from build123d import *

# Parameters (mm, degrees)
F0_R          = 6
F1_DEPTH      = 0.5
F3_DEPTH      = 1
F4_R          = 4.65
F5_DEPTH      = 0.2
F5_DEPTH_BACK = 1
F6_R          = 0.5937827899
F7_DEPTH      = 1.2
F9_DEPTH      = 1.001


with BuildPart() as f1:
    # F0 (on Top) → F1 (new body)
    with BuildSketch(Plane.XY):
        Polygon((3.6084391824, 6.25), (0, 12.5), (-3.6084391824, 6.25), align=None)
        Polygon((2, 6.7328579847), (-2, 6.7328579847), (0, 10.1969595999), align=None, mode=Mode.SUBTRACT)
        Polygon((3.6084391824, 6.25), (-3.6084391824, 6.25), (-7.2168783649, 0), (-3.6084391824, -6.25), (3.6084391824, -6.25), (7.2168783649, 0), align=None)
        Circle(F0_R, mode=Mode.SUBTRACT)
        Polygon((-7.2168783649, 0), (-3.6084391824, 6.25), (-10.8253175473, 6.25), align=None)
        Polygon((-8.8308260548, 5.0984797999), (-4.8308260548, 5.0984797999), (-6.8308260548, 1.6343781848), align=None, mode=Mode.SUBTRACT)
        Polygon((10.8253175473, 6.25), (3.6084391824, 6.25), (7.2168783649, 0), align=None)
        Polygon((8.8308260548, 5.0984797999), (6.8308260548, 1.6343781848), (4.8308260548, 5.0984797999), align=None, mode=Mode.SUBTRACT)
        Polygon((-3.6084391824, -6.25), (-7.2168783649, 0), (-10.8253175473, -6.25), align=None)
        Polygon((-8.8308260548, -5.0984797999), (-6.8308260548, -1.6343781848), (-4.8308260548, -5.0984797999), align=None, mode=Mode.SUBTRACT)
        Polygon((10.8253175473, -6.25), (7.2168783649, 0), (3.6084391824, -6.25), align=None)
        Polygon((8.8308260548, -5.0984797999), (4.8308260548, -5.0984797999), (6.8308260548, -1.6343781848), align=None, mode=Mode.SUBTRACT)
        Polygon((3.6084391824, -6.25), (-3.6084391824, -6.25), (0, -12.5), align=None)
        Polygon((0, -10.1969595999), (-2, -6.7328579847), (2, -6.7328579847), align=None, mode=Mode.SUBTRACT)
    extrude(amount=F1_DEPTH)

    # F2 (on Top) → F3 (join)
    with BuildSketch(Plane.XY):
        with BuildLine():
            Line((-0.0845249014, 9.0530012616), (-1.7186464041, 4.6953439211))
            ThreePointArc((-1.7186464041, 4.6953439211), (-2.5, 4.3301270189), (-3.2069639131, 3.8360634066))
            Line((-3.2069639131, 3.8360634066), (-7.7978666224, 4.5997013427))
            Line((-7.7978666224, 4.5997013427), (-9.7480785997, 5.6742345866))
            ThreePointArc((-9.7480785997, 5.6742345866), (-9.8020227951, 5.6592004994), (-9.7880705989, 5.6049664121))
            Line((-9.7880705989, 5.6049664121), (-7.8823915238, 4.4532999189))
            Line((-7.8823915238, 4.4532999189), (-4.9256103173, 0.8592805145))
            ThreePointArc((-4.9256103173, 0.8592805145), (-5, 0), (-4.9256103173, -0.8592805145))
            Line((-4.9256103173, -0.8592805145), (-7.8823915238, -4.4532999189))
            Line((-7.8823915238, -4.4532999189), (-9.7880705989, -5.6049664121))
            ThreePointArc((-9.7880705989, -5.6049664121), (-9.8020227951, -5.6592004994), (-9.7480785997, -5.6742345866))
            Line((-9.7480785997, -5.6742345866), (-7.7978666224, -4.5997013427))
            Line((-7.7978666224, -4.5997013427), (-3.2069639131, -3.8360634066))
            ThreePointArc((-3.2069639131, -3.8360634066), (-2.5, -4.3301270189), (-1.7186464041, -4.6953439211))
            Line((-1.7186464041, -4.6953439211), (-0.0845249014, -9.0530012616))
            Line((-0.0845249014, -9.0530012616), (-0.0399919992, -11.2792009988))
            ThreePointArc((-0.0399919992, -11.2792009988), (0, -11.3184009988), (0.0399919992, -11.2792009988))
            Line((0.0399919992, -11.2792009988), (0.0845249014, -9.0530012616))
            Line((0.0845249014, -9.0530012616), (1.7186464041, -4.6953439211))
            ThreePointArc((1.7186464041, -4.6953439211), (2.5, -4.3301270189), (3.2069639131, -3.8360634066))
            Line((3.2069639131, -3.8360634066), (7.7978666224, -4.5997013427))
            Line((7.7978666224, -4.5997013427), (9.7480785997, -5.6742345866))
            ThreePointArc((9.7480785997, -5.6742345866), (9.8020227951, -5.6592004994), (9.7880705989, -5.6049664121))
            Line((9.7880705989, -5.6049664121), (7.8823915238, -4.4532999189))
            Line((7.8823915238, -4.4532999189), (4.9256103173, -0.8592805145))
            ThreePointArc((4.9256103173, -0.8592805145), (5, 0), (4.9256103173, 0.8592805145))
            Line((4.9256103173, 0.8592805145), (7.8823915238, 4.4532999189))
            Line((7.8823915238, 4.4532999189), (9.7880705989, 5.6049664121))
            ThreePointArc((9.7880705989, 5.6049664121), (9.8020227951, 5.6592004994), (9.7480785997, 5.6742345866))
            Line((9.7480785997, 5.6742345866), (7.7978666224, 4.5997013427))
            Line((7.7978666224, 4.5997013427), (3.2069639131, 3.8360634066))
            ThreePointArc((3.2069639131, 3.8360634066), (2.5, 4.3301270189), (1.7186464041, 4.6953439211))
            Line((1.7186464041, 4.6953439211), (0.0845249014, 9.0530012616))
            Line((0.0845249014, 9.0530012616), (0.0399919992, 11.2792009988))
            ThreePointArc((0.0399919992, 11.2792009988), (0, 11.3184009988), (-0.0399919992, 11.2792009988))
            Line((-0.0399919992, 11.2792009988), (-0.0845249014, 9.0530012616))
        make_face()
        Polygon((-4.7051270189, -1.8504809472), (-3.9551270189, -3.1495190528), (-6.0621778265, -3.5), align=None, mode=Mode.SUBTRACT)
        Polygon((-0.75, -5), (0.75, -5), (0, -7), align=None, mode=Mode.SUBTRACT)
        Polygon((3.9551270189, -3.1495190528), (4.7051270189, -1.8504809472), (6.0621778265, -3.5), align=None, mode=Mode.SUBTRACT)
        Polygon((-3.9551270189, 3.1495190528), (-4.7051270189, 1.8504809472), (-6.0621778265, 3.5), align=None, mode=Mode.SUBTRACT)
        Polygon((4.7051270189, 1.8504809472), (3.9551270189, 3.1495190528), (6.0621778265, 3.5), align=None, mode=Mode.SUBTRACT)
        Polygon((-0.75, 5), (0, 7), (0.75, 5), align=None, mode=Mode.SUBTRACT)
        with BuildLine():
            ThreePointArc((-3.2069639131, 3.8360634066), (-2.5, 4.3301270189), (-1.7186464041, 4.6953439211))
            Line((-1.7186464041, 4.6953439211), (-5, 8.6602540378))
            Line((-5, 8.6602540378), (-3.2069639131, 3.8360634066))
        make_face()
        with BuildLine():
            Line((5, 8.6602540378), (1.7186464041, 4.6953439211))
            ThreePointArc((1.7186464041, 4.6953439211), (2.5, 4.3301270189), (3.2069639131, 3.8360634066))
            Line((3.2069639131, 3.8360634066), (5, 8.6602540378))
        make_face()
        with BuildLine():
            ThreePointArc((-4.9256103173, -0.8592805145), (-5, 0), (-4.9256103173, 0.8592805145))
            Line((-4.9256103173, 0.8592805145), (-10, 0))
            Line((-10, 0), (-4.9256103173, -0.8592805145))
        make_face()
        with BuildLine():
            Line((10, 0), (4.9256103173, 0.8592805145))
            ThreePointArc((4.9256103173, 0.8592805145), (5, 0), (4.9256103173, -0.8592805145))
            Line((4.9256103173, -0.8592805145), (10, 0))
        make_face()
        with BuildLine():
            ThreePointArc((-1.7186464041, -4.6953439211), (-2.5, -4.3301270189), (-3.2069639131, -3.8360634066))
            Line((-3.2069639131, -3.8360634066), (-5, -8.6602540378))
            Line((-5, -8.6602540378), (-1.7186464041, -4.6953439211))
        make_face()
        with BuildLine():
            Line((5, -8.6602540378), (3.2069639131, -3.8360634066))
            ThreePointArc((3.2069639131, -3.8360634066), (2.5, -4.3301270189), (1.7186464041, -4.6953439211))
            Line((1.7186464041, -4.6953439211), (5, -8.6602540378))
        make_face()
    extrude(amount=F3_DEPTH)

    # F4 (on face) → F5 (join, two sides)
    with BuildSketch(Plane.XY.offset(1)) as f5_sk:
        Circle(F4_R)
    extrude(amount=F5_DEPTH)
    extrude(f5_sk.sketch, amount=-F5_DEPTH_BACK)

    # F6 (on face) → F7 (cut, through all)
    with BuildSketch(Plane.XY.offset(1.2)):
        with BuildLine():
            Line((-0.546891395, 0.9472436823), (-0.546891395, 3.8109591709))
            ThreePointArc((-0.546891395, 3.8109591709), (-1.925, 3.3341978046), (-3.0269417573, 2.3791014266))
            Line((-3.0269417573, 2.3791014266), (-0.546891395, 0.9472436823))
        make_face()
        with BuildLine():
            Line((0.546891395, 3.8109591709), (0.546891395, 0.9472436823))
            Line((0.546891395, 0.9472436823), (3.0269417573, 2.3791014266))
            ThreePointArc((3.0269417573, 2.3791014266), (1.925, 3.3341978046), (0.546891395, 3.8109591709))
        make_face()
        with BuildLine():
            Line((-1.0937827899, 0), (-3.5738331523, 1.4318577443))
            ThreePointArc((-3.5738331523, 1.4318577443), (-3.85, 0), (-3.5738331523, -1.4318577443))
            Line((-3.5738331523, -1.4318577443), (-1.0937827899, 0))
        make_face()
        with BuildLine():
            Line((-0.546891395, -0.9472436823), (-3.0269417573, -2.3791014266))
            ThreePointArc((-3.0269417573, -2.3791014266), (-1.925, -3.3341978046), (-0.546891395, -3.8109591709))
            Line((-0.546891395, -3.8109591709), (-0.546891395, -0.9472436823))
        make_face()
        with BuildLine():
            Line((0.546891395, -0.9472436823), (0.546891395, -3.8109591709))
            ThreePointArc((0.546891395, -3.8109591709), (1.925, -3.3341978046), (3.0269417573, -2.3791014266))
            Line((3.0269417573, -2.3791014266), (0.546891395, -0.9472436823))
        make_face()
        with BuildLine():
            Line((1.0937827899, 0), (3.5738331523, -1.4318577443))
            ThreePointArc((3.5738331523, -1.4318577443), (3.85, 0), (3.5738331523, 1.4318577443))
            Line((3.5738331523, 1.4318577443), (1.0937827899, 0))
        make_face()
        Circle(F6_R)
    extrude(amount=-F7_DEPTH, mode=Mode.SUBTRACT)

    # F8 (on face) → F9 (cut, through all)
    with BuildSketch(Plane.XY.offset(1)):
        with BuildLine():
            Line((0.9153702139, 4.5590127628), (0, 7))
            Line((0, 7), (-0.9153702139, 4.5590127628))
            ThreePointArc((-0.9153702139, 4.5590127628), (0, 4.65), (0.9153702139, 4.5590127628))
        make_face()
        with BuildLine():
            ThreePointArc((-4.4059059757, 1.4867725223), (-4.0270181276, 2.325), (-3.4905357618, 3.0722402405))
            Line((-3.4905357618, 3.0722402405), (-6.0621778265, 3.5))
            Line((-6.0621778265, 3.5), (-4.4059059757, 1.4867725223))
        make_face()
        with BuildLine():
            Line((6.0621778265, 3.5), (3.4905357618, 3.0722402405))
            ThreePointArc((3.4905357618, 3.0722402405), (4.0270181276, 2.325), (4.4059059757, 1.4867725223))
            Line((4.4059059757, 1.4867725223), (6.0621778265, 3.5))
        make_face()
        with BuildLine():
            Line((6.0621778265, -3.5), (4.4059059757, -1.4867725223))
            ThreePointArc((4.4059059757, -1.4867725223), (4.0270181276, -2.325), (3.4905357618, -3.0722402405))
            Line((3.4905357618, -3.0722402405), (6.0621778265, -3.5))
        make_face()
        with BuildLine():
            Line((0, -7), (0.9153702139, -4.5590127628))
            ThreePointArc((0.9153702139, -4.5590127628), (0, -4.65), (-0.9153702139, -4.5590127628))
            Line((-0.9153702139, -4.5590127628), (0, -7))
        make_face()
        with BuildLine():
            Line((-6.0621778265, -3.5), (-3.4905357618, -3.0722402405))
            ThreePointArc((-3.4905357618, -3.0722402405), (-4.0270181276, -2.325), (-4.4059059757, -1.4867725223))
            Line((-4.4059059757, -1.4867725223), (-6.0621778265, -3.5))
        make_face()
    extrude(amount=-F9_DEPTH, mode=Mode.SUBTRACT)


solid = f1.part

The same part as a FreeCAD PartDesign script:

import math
import FreeCAD as App
import Part
import Sketcher
from FreeCAD import Vector
Q = App.Units.Quantity


def add_polygon(sketch, points):
    """Adds a closed chain of lines whose ends are joined by coincident constraints."""
    first, n = sketch.GeometryCount, len(points)
    for a, b in zip(points, points[1:] + points[:1]):
        sketch.addGeometry(Part.LineSegment(App.Vector(*a, 0), App.Vector(*b, 0)), False)
    for i in range(n):
        sketch.addConstraint(Sketcher.Constraint("Coincident", first + i, 2, first + (i + 1) % n, 1))

doc = App.newDocument("Part")
body = doc.addObject("PartDesign::Body", "Body")

# Sketch on XY plane
sketch1 = body.newObject("Sketcher::SketchObject", "Sketch")
sketch1.AttachmentSupport = (doc.getObject("XY_Plane"), [""])
sketch1.MapMode = "FlatFace"
add_polygon(sketch1, [(3.6, 6.2), (0, 12.5), (-3.6, 6.2), (-10.8, 6.2), (-7.2, 0), (-10.8, -6.2), (-3.6, -6.2), (0, -12.5), (3.6, -6.2), (10.8, -6.2), (7.2, 0), (10.8, 6.2)])  # lines 0-11
add_polygon(sketch1, [(-4.8, -5.1), (-8.8, -5.1), (-6.8, -1.6)])  # lines 12-14
add_polygon(sketch1, [(2, -6.7), (0, -10.2), (-2, -6.7)])  # lines 15-17
add_polygon(sketch1, [(6.8, -1.6), (8.8, -5.1), (4.8, -5.1)])  # lines 18-20
add_polygon(sketch1, [(-6.8, 1.6), (-8.8, 5.1), (-4.8, 5.1)])  # lines 21-23
sketch1.addGeometry(Part.Circle(Vector(0, 0, 0), Vector(0, 0, 1), 6), False)  # 24
add_polygon(sketch1, [(4.8, 5.1), (8.8, 5.1), (6.8, 1.6)])  # lines 25-27
add_polygon(sketch1, [(0, 10.2), (2, 6.7), (-2, 6.7)])  # lines 28-30
sketch1.addConstraint([
    Sketcher.Constraint("Horizontal", 2),
    Sketcher.Constraint("Horizontal", 5),
    Sketcher.Constraint("Horizontal", 8),
    Sketcher.Constraint("Horizontal", 11),
    Sketcher.Constraint("Horizontal", 12),
    Sketcher.Constraint("Horizontal", 17),
    Sketcher.Constraint("Horizontal", 19),
    Sketcher.Constraint("Horizontal", 22),
    Sketcher.Constraint("Horizontal", 25),
    Sketcher.Constraint("Horizontal", 29),
    Sketcher.Constraint("Coincident", 24, 3, -1, 1),
    Sketcher.Constraint("Symmetric", 0, 2, 6, 2, -1, 1),
    Sketcher.Constraint("Symmetric", 1, 2, 7, 2, -1, 1),
    Sketcher.Constraint("Symmetric", 3, 2, 9, 2, -1, 1),
    Sketcher.Constraint("Symmetric", 4, 2, 10, 2, -1, 1),
    Sketcher.Constraint("Symmetric", 18, 2, 21, 2, -1, 1),
    Sketcher.Constraint("Symmetric", 20, 2, 23, 2, -1, 1),
    Sketcher.Constraint("Symmetric", 12, 2, 25, 2, -1, 1),
    Sketcher.Constraint("Symmetric", 13, 2, 26, 2, -1, 1),
    Sketcher.Constraint("Symmetric", 16, 2, 28, 2, -1, 1),
    Sketcher.Constraint("Symmetric", 15, 2, 30, 2, -1, 1),
    Sketcher.Constraint("Symmetric", 5, 2, 7, 2, -2),
    Sketcher.Constraint("Symmetric", 12, 2, 18, 2, -2),
    Sketcher.Constraint("Symmetric", 13, 2, 20, 2, -2),
    Sketcher.Constraint("PointOnObject", 0, 2, -2),
    Sketcher.Constraint("PointOnObject", 3, 2, -1),
    Sketcher.Constraint("PointOnObject", 15, 2, -2),
    Sketcher.Constraint("Parallel", 0, 3),
    Sketcher.Constraint("Parallel", 1, 4),
    Sketcher.Constraint("Parallel", 3, 6),
    Sketcher.Constraint("Parallel", 6, 9),
    Sketcher.Constraint("Parallel", 10, 13),
    Sketcher.Constraint("Parallel", 9, 14),
    Sketcher.Constraint("Parallel", 13, 15),
    Sketcher.Constraint("Parallel", 14, 16),
    Sketcher.Constraint("Parallel", 15, 20),
    Sketcher.Constraint("Parallel", 20, 23),
    Sketcher.Constraint("Parallel", 21, 27),
    Sketcher.Constraint("Parallel", 26, 30),
    Sketcher.Constraint("Equal", 12, 17),
    Sketcher.Constraint("Equal", 1, 3),
    Sketcher.Constraint("Diameter", 24, Q("12 mm")),
    Sketcher.Constraint("DistanceX", 12, 2, 12, 1, Q("4 mm")),
    Sketcher.Constraint("Angle", 0, Q("120 deg")),
    Sketcher.Constraint("DistanceY", -1, 1, 0, 2, Q("12.5 mm")),
    Sketcher.Constraint("DistanceX", 2, 2, 2, 1, Q("7.216878 mm")),
    Sketcher.Constraint("DistanceY", 12, 2, -1, 1, Q("5.09848 mm")),
    Sketcher.Constraint("DistanceY", 15, 2, -1, 1, Q("10.19696 mm")),
    Sketcher.Constraint("DistanceX", 4, 2, 12, 2, Q("1.994491 mm")),
])
pad1 = body.newObject("PartDesign::Pad", "Pad")
pad1.Profile = sketch1
pad1.Length = 0.5

# Sketch on XY plane
sketch2 = body.newObject("Sketcher::SketchObject", "Sketch001")
sketch2.AttachmentSupport = (doc.getObject("XY_Plane"), [""])
sketch2.MapMode = "FlatFace"
sketch2.addGeometry(Part.LineSegment(Vector(-0.085, 9.053, 0), Vector(-1.719, 4.695, 0)), False)  # 0
sketch2.addGeometry(Part.LineSegment(Vector(-1.719, 4.695, 0), Vector(-5, 8.66, 0)), False)  # 1
sketch2.addGeometry(Part.LineSegment(Vector(-5, 8.66, 0), Vector(-3.207, 3.836, 0)), False)  # 2
sketch2.addGeometry(Part.LineSegment(Vector(-3.207, 3.836, 0), Vector(-7.798, 4.6, 0)), False)  # 3
sketch2.addGeometry(Part.LineSegment(Vector(-7.798, 4.6, 0), Vector(-9.748, 5.674, 0)), False)  # 4
sketch2.addGeometry(Part.ArcOfCircle(Part.Circle(Vector(-9.767, 5.639, 0), Vector(0, 0, 1), 0.04), math.radians(61), math.radians(239)), False)  # 5
sketch2.addGeometry(Part.LineSegment(Vector(-9.788, 5.605, 0), Vector(-7.882, 4.453, 0)), False)  # 6
sketch2.addGeometry(Part.LineSegment(Vector(-7.882, 4.453, 0), Vector(-4.926, 0.859, 0)), False)  # 7
sketch2.addGeometry(Part.LineSegment(Vector(-4.926, 0.859, 0), Vector(-10, 0, 0)), False)  # 8
sketch2.addGeometry(Part.LineSegment(Vector(-10, 0, 0), Vector(-4.926, -0.859, 0)), False)  # 9
sketch2.addGeometry(Part.LineSegment(Vector(-4.926, -0.859, 0), Vector(-7.882, -4.453, 0)), False)  # 10
sketch2.addGeometry(Part.LineSegment(Vector(-7.882, -4.453, 0), Vector(-9.788, -5.605, 0)), False)  # 11
sketch2.addGeometry(Part.ArcOfCircle(Part.Circle(Vector(-9.767, -5.639, 0), Vector(0, 0, 1), 0.04), math.radians(121), math.radians(299)), False)  # 12
sketch2.addGeometry(Part.LineSegment(Vector(-9.748, -5.674, 0), Vector(-7.798, -4.6, 0)), False)  # 13
sketch2.addGeometry(Part.LineSegment(Vector(-7.798, -4.6, 0), Vector(-3.207, -3.836, 0)), False)  # 14
sketch2.addGeometry(Part.LineSegment(Vector(-3.207, -3.836, 0), Vector(-5, -8.66, 0)), False)  # 15
sketch2.addGeometry(Part.LineSegment(Vector(-5, -8.66, 0), Vector(-1.719, -4.695, 0)), False)  # 16
sketch2.addGeometry(Part.LineSegment(Vector(-1.719, -4.695, 0), Vector(-0.085, -9.053, 0)), False)  # 17
sketch2.addGeometry(Part.LineSegment(Vector(-0.085, -9.053, 0), Vector(-0.04, -11.279, 0)), False)  # 18
sketch2.addGeometry(Part.ArcOfCircle(Part.Circle(Vector(0, -11.278, 0), Vector(0, 0, 1), 0.04), math.radians(-179), math.radians(-1)), False)  # 19
sketch2.addGeometry(Part.LineSegment(Vector(0.04, -11.279, 0), Vector(0.085, -9.053, 0)), False)  # 20
sketch2.addGeometry(Part.LineSegment(Vector(0.085, -9.053, 0), Vector(1.719, -4.695, 0)), False)  # 21
sketch2.addGeometry(Part.LineSegment(Vector(1.719, -4.695, 0), Vector(5, -8.66, 0)), False)  # 22
sketch2.addGeometry(Part.LineSegment(Vector(5, -8.66, 0), Vector(3.207, -3.836, 0)), False)  # 23
sketch2.addGeometry(Part.LineSegment(Vector(3.207, -3.836, 0), Vector(7.798, -4.6, 0)), False)  # 24
sketch2.addGeometry(Part.LineSegment(Vector(7.798, -4.6, 0), Vector(9.748, -5.674, 0)), False)  # 25
sketch2.addGeometry(Part.ArcOfCircle(Part.Circle(Vector(9.767, -5.639, 0), Vector(0, 0, 1), 0.04), math.radians(-119), math.radians(59)), False)  # 26
sketch2.addGeometry(Part.LineSegment(Vector(9.788, -5.605, 0), Vector(7.882, -4.453, 0)), False)  # 27
sketch2.addGeometry(Part.LineSegment(Vector(7.882, -4.453, 0), Vector(4.926, -0.859, 0)), False)  # 28
sketch2.addGeometry(Part.LineSegment(Vector(4.926, -0.859, 0), Vector(10, 0, 0)), False)  # 29
sketch2.addGeometry(Part.LineSegment(Vector(10, 0, 0), Vector(4.926, 0.859, 0)), False)  # 30
sketch2.addGeometry(Part.LineSegment(Vector(4.926, 0.859, 0), Vector(7.882, 4.453, 0)), False)  # 31
sketch2.addGeometry(Part.LineSegment(Vector(7.882, 4.453, 0), Vector(9.788, 5.605, 0)), False)  # 32
sketch2.addGeometry(Part.ArcOfCircle(Part.Circle(Vector(9.767, 5.639, 0), Vector(0, 0, 1), 0.04), math.radians(-59), math.radians(119)), False)  # 33
sketch2.addGeometry(Part.LineSegment(Vector(9.748, 5.674, 0), Vector(7.798, 4.6, 0)), False)  # 34
sketch2.addGeometry(Part.LineSegment(Vector(7.798, 4.6, 0), Vector(3.207, 3.836, 0)), False)  # 35
sketch2.addGeometry(Part.LineSegment(Vector(3.207, 3.836, 0), Vector(5, 8.66, 0)), False)  # 36
sketch2.addGeometry(Part.LineSegment(Vector(5, 8.66, 0), Vector(1.719, 4.695, 0)), False)  # 37
sketch2.addGeometry(Part.LineSegment(Vector(1.719, 4.695, 0), Vector(0.085, 9.053, 0)), False)  # 38
sketch2.addGeometry(Part.LineSegment(Vector(0.085, 9.053, 0), Vector(0.04, 11.279, 0)), False)  # 39
sketch2.addGeometry(Part.ArcOfCircle(Part.Circle(Vector(0, 11.278, 0), Vector(0, 0, 1), 0.04), math.radians(1), math.radians(179)), False)  # 40
sketch2.addGeometry(Part.LineSegment(Vector(-0.04, 11.279, 0), Vector(-0.085, 9.053, 0)), False)  # 41
add_polygon(sketch2, [(-6.062, -3.5), (-4.705, -1.85), (-3.955, -3.15)])  # lines 42-44
add_polygon(sketch2, [(0, -7), (-0.75, -5), (0.75, -5)])  # lines 45-47
add_polygon(sketch2, [(6.062, -3.5), (3.955, -3.15), (4.705, -1.85)])  # lines 48-50
add_polygon(sketch2, [(-6.062, 3.5), (-3.955, 3.15), (-4.705, 1.85)])  # lines 51-53
add_polygon(sketch2, [(6.062, 3.5), (4.705, 1.85), (3.955, 3.15)])  # lines 54-56
add_polygon(sketch2, [(0.75, 5), (-0.75, 5), (0, 7)])  # lines 57-59
sketch2.addConstraint([
    Sketcher.Constraint("Coincident", 0, 2, 1, 1),
    Sketcher.Constraint("Coincident", 1, 2, 2, 1),
    Sketcher.Constraint("Coincident", 2, 2, 3, 1),
    Sketcher.Constraint("Coincident", 3, 2, 4, 1),
    Sketcher.Constraint("Tangent", 4, 2, 5, 1),
    Sketcher.Constraint("Tangent", 5, 2, 6, 1),
    Sketcher.Constraint("Coincident", 6, 2, 7, 1),
    Sketcher.Constraint("Coincident", 7, 2, 8, 1),
    Sketcher.Constraint("Coincident", 8, 2, 9, 1),
    Sketcher.Constraint("Coincident", 9, 2, 10, 1),
    Sketcher.Constraint("Coincident", 10, 2, 11, 1),
    Sketcher.Constraint("Tangent", 11, 2, 12, 1),
    Sketcher.Constraint("Tangent", 12, 2, 13, 1),
    Sketcher.Constraint("Coincident", 13, 2, 14, 1),
    Sketcher.Constraint("Coincident", 14, 2, 15, 1),
    Sketcher.Constraint("Coincident", 15, 2, 16, 1),
    Sketcher.Constraint("Coincident", 16, 2, 17, 1),
    Sketcher.Constraint("Coincident", 17, 2, 18, 1),
    Sketcher.Constraint("Tangent", 18, 2, 19, 1),
    Sketcher.Constraint("Tangent", 19, 2, 20, 1),
    Sketcher.Constraint("Coincident", 20, 2, 21, 1),
    Sketcher.Constraint("Coincident", 21, 2, 22, 1),
    Sketcher.Constraint("Coincident", 22, 2, 23, 1),
    Sketcher.Constraint("Coincident", 23, 2, 24, 1),
    Sketcher.Constraint("Coincident", 24, 2, 25, 1),
    Sketcher.Constraint("Tangent", 25, 2, 26, 1),
    Sketcher.Constraint("Tangent", 26, 2, 27, 1),
    Sketcher.Constraint("Coincident", 27, 2, 28, 1),
    Sketcher.Constraint("Coincident", 28, 2, 29, 1),
    Sketcher.Constraint("Coincident", 29, 2, 30, 1),
    Sketcher.Constraint("Coincident", 30, 2, 31, 1),
    Sketcher.Constraint("Coincident", 31, 2, 32, 1),
    Sketcher.Constraint("Tangent", 32, 2, 33, 1),
    Sketcher.Constraint("Tangent", 33, 2, 34, 1),
    Sketcher.Constraint("Coincident", 34, 2, 35, 1),
    Sketcher.Constraint("Coincident", 35, 2, 36, 1),
    Sketcher.Constraint("Coincident", 36, 2, 37, 1),
    Sketcher.Constraint("Coincident", 37, 2, 38, 1),
    Sketcher.Constraint("Coincident", 38, 2, 39, 1),
    Sketcher.Constraint("Tangent", 39, 2, 40, 1),
    Sketcher.Constraint("Tangent", 40, 2, 41, 1),
    Sketcher.Constraint("Coincident", 41, 2, 0, 1),
    Sketcher.Constraint("Horizontal", 46),
    Sketcher.Constraint("Horizontal", 57),
    Sketcher.Constraint("Equal", 5, 12),
    Sketcher.Constraint("Equal", 12, 19),
    Sketcher.Constraint("Equal", 19, 26),
    Sketcher.Constraint("Equal", 26, 33),
    Sketcher.Constraint("Equal", 33, 40),
    Sketcher.Constraint("Symmetric", 5, 3, 26, 3, -1, 1),
    Sketcher.Constraint("Symmetric", 12, 3, 33, 3, -1, 1),
    Sketcher.Constraint("Symmetric", 19, 3, 40, 3, -1, 1),
    Sketcher.Constraint("Symmetric", 0, 2, 21, 2, -1, 1),
    Sketcher.Constraint("Symmetric", 1, 2, 22, 2, -1, 1),
    Sketcher.Constraint("Symmetric", 2, 2, 23, 2, -1, 1),
    Sketcher.Constraint("Symmetric", 3, 2, 24, 2, -1, 1),
    Sketcher.Constraint("Symmetric", 6, 2, 27, 2, -1, 1),
    Sketcher.Constraint("Symmetric", 7, 2, 28, 2, -1, 1),
    Sketcher.Constraint("Symmetric", 8, 2, 29, 2, -1, 1),
    Sketcher.Constraint("Symmetric", 9, 2, 30, 2, -1, 1),
    Sketcher.Constraint("Symmetric", 10, 2, 31, 2, -1, 1),
    Sketcher.Constraint("Symmetric", 13, 2, 34, 2, -1, 1),
    Sketcher.Constraint("Symmetric", 14, 2, 35, 2, -1, 1),
    Sketcher.Constraint("Symmetric", 15, 2, 36, 2, -1, 1),
    Sketcher.Constraint("Symmetric", 16, 2, 37, 2, -1, 1),
    Sketcher.Constraint("Symmetric", 17, 2, 38, 2, -1, 1),
    Sketcher.Constraint("Symmetric", 20, 2, 41, 2, -1, 1),
    Sketcher.Constraint("Symmetric", 48, 2, 51, 2, -1, 1),
    Sketcher.Constraint("Symmetric", 49, 2, 52, 2, -1, 1),
    Sketcher.Constraint("Symmetric", 50, 2, 53, 2, -1, 1),
    Sketcher.Constraint("Symmetric", 42, 2, 54, 2, -1, 1),
    Sketcher.Constraint("Symmetric", 43, 2, 55, 2, -1, 1),
    Sketcher.Constraint("Symmetric", 44, 2, 56, 2, -1, 1),
    Sketcher.Constraint("Symmetric", 46, 2, 57, 2, -1, 1),
    Sketcher.Constraint("Symmetric", 47, 2, 58, 2, -1, 1),
    Sketcher.Constraint("Symmetric", 12, 3, 26, 3, -2),
    Sketcher.Constraint("Symmetric", 18, 2, 19, 2, -2),
    Sketcher.Constraint("Symmetric", 16, 2, 21, 2, -2),
    Sketcher.Constraint("Symmetric", 15, 2, 22, 2, -2),
    Sketcher.Constraint("Symmetric", 14, 2, 23, 2, -2),
    Sketcher.Constraint("Symmetric", 13, 2, 24, 2, -2),
    Sketcher.Constraint("Symmetric", 10, 2, 27, 2, -2),
    Sketcher.Constraint("Symmetric", 9, 2, 28, 2, -2),
    Sketcher.Constraint("Symmetric", 43, 2, 48, 2, -2),
    Sketcher.Constraint("Symmetric", 42, 2, 49, 2, -2),
    Sketcher.Constraint("Symmetric", 44, 2, 50, 2, -2),
    Sketcher.Constraint("PointOnObject", 8, 2, -1),
    Sketcher.Constraint("PointOnObject", 47, 2, -2),
    Sketcher.Constraint("Parallel", 31, 42),
    Sketcher.Constraint("Parallel", 35, 44),
    Sketcher.Constraint("Parallel", 38, 45),
    Sketcher.Constraint("Parallel", 21, 47),
    Sketcher.Constraint("Parallel", 45, 59),
    Sketcher.Constraint("Horizontal", 17, 2, 20, 2),
    Sketcher.Constraint("Equal", 1, 2),
    Sketcher.Constraint("Equal", 0, 3),
    Sketcher.Constraint("Equal", 4, 6),
    Sketcher.Constraint("Equal", 3, 7),
    Sketcher.Constraint("Equal", 2, 8),
    Sketcher.Constraint("Equal", 13, 18),
    Sketcher.Constraint("Equal", 42, 44),
    Sketcher.Constraint("Equal", 44, 45),
    Sketcher.Constraint("Angle", 43, Q("-60 deg")),
    Sketcher.Constraint("Radius", 5, Q("0.04 mm")),
    Sketcher.Constraint("DistanceX", 46, 1, 46, 2, Q("1.5 mm")),
    Sketcher.Constraint("DistanceX", 1, 2, -1, 1, Q("5 mm")),
    Sketcher.Constraint("DistanceX", 8, 2, -1, 1, Q("10 mm")),
    Sketcher.Constraint("DistanceY", 45, 2, -1, 1, Q("5 mm")),
    Sketcher.Constraint("DistanceY", 47, 2, -1, 1, Q("7 mm")),
    Sketcher.Constraint("Distance", 43, Q("1.5 mm")),
    Sketcher.Constraint("DistanceY", 44, 2, -1, 1, Q("3.5 mm")),
    Sketcher.Constraint("DistanceY", 17, 2, -1, 1, Q("9.053001 mm")),
    Sketcher.Constraint("DistanceY", -1, 1, 5, 3, Q("5.6392 mm")),
    Sketcher.Constraint("DistanceY", 19, 3, -1, 1, Q("11.278401 mm")),
    Sketcher.Constraint("DistanceY", -1, 1, 3, 2, Q("4.599701 mm")),
    Sketcher.Constraint("DistanceY", -1, 1, 6, 2, Q("4.4533 mm")),
    Sketcher.Constraint("Distance", 0, Q("4.65398 mm")),
    Sketcher.Constraint("Distance", 1, Q("5.146629 mm")),
    Sketcher.Constraint("DistanceX", 42, 2, -1, 1, Q("4.705127 mm")),
])
pad2 = body.newObject("PartDesign::Pad", "Pad001")
pad2.Profile = sketch2
pad2.Length = 1

# Sketch on XY plane
sketch3 = body.newObject("Sketcher::SketchObject", "Sketch002")
sketch3.AttachmentSupport = (doc.getObject("XY_Plane"), [""])
sketch3.MapMode = "FlatFace"
sketch3.AttachmentOffset = App.Placement(Vector(0, 0, 1), App.Rotation())
sketch3.addGeometry(Part.Circle(Vector(0, 0, 0), Vector(0, 0, 1), 4.7), False)
sketch3.addConstraint([
    Sketcher.Constraint("Coincident", 0, 3, -1, 1),
    Sketcher.Constraint("Diameter", 0, Q("9.3 mm")),
])
pad3 = body.newObject("PartDesign::Pad", "Pad002")
pad3.Profile = sketch3
pad3.Type = "TwoLengths"
pad3.Length = 0.2
pad3.Length2 = 1

# Sketch on XY plane
sketch4 = body.newObject("Sketcher::SketchObject", "Sketch003")
sketch4.AttachmentSupport = (doc.getObject("XY_Plane"), [""])
sketch4.MapMode = "FlatFace"
sketch4.AttachmentOffset = App.Placement(Vector(0, 0, 1.2), App.Rotation())
sketch4.addGeometry([
    Part.LineSegment(Vector(-0.5, 0.9, 0), Vector(-0.5, 3.8, 0)),  # 0
    Part.ArcOfCircle(Part.Circle(Vector(0, 0, 0), Vector(0, 0, 1), 3.9), math.radians(98), math.radians(142)),  # 1
    Part.LineSegment(Vector(-3, 2.4, 0), Vector(-0.5, 0.9, 0)),  # 2
    Part.LineSegment(Vector(0.5, 3.8, 0), Vector(0.5, 0.9, 0)),  # 3
    Part.LineSegment(Vector(0.5, 0.9, 0), Vector(3, 2.4, 0)),  # 4
    Part.ArcOfCircle(Part.Circle(Vector(0, 0, 0), Vector(0, 0, 1), 3.9), math.radians(38), math.radians(82)),  # 5
    Part.LineSegment(Vector(-1.1, 0, 0), Vector(-3.6, 1.4, 0)),  # 6
    Part.ArcOfCircle(Part.Circle(Vector(0, 0, 0), Vector(0, 0, 1), 3.9), math.radians(158), math.radians(202)),  # 7
    Part.LineSegment(Vector(-3.6, -1.4, 0), Vector(-1.1, 0, 0)),  # 8
    Part.LineSegment(Vector(-0.5, -0.9, 0), Vector(-3, -2.4, 0)),  # 9
    Part.ArcOfCircle(Part.Circle(Vector(0, 0, 0), Vector(0, 0, 1), 3.9), math.radians(-142), math.radians(-98)),  # 10
    Part.LineSegment(Vector(-0.5, -3.8, 0), Vector(-0.5, -0.9, 0)),  # 11
    Part.LineSegment(Vector(0.5, -0.9, 0), Vector(0.5, -3.8, 0)),  # 12
    Part.ArcOfCircle(Part.Circle(Vector(0, 0, 0), Vector(0, 0, 1), 3.9), math.radians(-82), math.radians(-38)),  # 13
    Part.LineSegment(Vector(3, -2.4, 0), Vector(0.5, -0.9, 0)),  # 14
    Part.LineSegment(Vector(1.1, 0, 0), Vector(3.6, -1.4, 0)),  # 15
    Part.ArcOfCircle(Part.Circle(Vector(0, 0, 0), Vector(0, 0, 1), 3.9), math.radians(-22), math.radians(22)),  # 16
    Part.LineSegment(Vector(3.6, 1.4, 0), Vector(1.1, 0, 0)),  # 17
    Part.Circle(Vector(0, 0, 0), Vector(0, 0, 1), 0.6),  # 18
], False)
sketch4.addConstraint([
    Sketcher.Constraint("Coincident", 0, 2, 1, 1),
    Sketcher.Constraint("Coincident", 1, 2, 2, 1),
    Sketcher.Constraint("Coincident", 2, 2, 0, 1),
    Sketcher.Constraint("Coincident", 3, 2, 4, 1),
    Sketcher.Constraint("Coincident", 4, 2, 5, 1),
    Sketcher.Constraint("Coincident", 5, 2, 3, 1),
    Sketcher.Constraint("Coincident", 6, 2, 7, 1),
    Sketcher.Constraint("Coincident", 7, 2, 8, 1),
    Sketcher.Constraint("Coincident", 8, 2, 6, 1),
    Sketcher.Constraint("Coincident", 9, 2, 10, 1),
    Sketcher.Constraint("Coincident", 10, 2, 11, 1),
    Sketcher.Constraint("Coincident", 11, 2, 9, 1),
    Sketcher.Constraint("Coincident", 12, 2, 13, 1),
    Sketcher.Constraint("Coincident", 13, 2, 14, 1),
    Sketcher.Constraint("Coincident", 14, 2, 12, 1),
    Sketcher.Constraint("Coincident", 15, 2, 16, 1),
    Sketcher.Constraint("Coincident", 16, 2, 17, 1),
    Sketcher.Constraint("Coincident", 17, 2, 15, 1),
    Sketcher.Constraint("Vertical", 0),
    Sketcher.Constraint("Vertical", 3),
    Sketcher.Constraint("Vertical", 11),
    Sketcher.Constraint("Vertical", 12),
    Sketcher.Constraint("Coincident", 1, 3, -1, 1),
    Sketcher.Constraint("Coincident", 5, 3, -1, 1),
    Sketcher.Constraint("Coincident", 7, 3, -1, 1),
    Sketcher.Constraint("Coincident", 10, 3, -1, 1),
    Sketcher.Constraint("Coincident", 13, 3, -1, 1),
    Sketcher.Constraint("Coincident", 16, 3, -1, 1),
    Sketcher.Constraint("Coincident", 18, 3, -1, 1),
    Sketcher.Constraint("Equal", 1, 5),
    Sketcher.Constraint("Equal", 5, 7),
    Sketcher.Constraint("Equal", 7, 10),
    Sketcher.Constraint("Equal", 10, 13),
    Sketcher.Constraint("Equal", 13, 16),
    Sketcher.Constraint("Symmetric", 3, 2, 11, 2, -1, 1),
    Sketcher.Constraint("Symmetric", 2, 2, 14, 2, -1, 1),
    Sketcher.Constraint("Symmetric", 8, 2, 17, 2, -1, 1),
    Sketcher.Constraint("Symmetric", 2, 2, 3, 2, -2),
    Sketcher.Constraint("PointOnObject", 8, 2, -1),
    Sketcher.Constraint("Parallel", 2, 6),
    Sketcher.Constraint("Parallel", 4, 8),
    Sketcher.Constraint("Parallel", 8, 9),
    Sketcher.Constraint("Parallel", 6, 14),
    Sketcher.Constraint("Parallel", 14, 15),
    Sketcher.Constraint("Parallel", 9, 17),
    Sketcher.Constraint("Horizontal", 1, 2, 4, 2),
    Sketcher.Constraint("Equal", 4, 6),
    Sketcher.Constraint("Angle", 2, Q("-30 deg")),
    Sketcher.Constraint("Radius", 1, Q("3.85 mm")),
    Sketcher.Constraint("Diameter", 18, Q("1.187566 mm")),
    Sketcher.Constraint("DistanceY", -1, 1, 1, 2, Q("2.379101 mm")),
    Sketcher.Constraint("DistanceY", 0, 1, 0, 2, Q("2.863715 mm")),
])
pocket1 = body.newObject("PartDesign::Pocket", "Pocket")
pocket1.Profile = sketch4
pocket1.Type = "ThroughAll"

# Sketch on XY plane
sketch5 = body.newObject("Sketcher::SketchObject", "Sketch004")
sketch5.AttachmentSupport = (doc.getObject("XY_Plane"), [""])
sketch5.MapMode = "FlatFace"
sketch5.AttachmentOffset = App.Placement(Vector(0, 0, 1), App.Rotation())
sketch5.addGeometry([
    Part.LineSegment(Vector(0.9, 4.6, 0), Vector(0, 7, 0)),  # 0
    Part.LineSegment(Vector(0, 7, 0), Vector(-0.9, 4.6, 0)),  # 1
    Part.ArcOfCircle(Part.Circle(Vector(0, 0, 0), Vector(0, 0, 1), 4.6), math.radians(79), math.radians(101)),  # 2
    Part.ArcOfCircle(Part.Circle(Vector(0, 0, 0), Vector(0, 0, 1), 4.6), math.radians(139), math.radians(161)),  # 3
    Part.LineSegment(Vector(-3.5, 3.1, 0), Vector(-6.1, 3.5, 0)),  # 4
    Part.LineSegment(Vector(-6.1, 3.5, 0), Vector(-4.4, 1.5, 0)),  # 5
    Part.LineSegment(Vector(6.1, 3.5, 0), Vector(3.5, 3.1, 0)),  # 6
    Part.ArcOfCircle(Part.Circle(Vector(0, 0, 0), Vector(0, 0, 1), 4.6), math.radians(19), math.radians(41)),  # 7
    Part.LineSegment(Vector(4.4, 1.5, 0), Vector(6.1, 3.5, 0)),  # 8
    Part.LineSegment(Vector(6.1, -3.5, 0), Vector(4.4, -1.5, 0)),  # 9
    Part.ArcOfCircle(Part.Circle(Vector(0, 0, 0), Vector(0, 0, 1), 4.6), math.radians(-41), math.radians(-19)),  # 10
    Part.LineSegment(Vector(3.5, -3.1, 0), Vector(6.1, -3.5, 0)),  # 11
    Part.LineSegment(Vector(0, -7, 0), Vector(0.9, -4.6, 0)),  # 12
    Part.ArcOfCircle(Part.Circle(Vector(0, 0, 0), Vector(0, 0, 1), 4.6), math.radians(-101), math.radians(-79)),  # 13
    Part.LineSegment(Vector(-0.9, -4.6, 0), Vector(0, -7, 0)),  # 14
    Part.LineSegment(Vector(-6.1, -3.5, 0), Vector(-3.5, -3.1, 0)),  # 15
    Part.ArcOfCircle(Part.Circle(Vector(0, 0, 0), Vector(0, 0, 1), 4.6), math.radians(-161), math.radians(-139)),  # 16
    Part.LineSegment(Vector(-4.4, -1.5, 0), Vector(-6.1, -3.5, 0)),  # 17
], False)
sketch5.addConstraint([
    Sketcher.Constraint("Coincident", 0, 2, 1, 1),
    Sketcher.Constraint("Coincident", 1, 2, 2, 2),
    Sketcher.Constraint("Coincident", 2, 1, 0, 1),
    Sketcher.Constraint("Coincident", 3, 1, 4, 1),
    Sketcher.Constraint("Coincident", 4, 2, 5, 1),
    Sketcher.Constraint("Coincident", 5, 2, 3, 2),
    Sketcher.Constraint("Coincident", 6, 2, 7, 2),
    Sketcher.Constraint("Coincident", 7, 1, 8, 1),
    Sketcher.Constraint("Coincident", 8, 2, 6, 1),
    Sketcher.Constraint("Coincident", 9, 2, 10, 2),
    Sketcher.Constraint("Coincident", 10, 1, 11, 1),
    Sketcher.Constraint("Coincident", 11, 2, 9, 1),
    Sketcher.Constraint("Coincident", 12, 2, 13, 2),
    Sketcher.Constraint("Coincident", 13, 1, 14, 1),
    Sketcher.Constraint("Coincident", 14, 2, 12, 1),
    Sketcher.Constraint("Coincident", 15, 2, 16, 2),
    Sketcher.Constraint("Coincident", 16, 1, 17, 1),
    Sketcher.Constraint("Coincident", 17, 2, 15, 1),
    Sketcher.Constraint("Coincident", 2, 3, -1, 1),
    Sketcher.Constraint("Coincident", 3, 3, -1, 1),
    Sketcher.Constraint("Coincident", 7, 3, -1, 1),
    Sketcher.Constraint("Coincident", 10, 3, -1, 1),
    Sketcher.Constraint("Coincident", 13, 3, -1, 1),
    Sketcher.Constraint("Coincident", 16, 3, -1, 1),
    Sketcher.Constraint("Equal", 2, 3),
    Sketcher.Constraint("Equal", 3, 7),
    Sketcher.Constraint("Equal", 7, 10),
    Sketcher.Constraint("Equal", 10, 13),
    Sketcher.Constraint("Equal", 13, 16),
    Sketcher.Constraint("Symmetric", 4, 2, 11, 2, -1, 1),
    Sketcher.Constraint("Symmetric", 0, 2, 14, 2, -1, 1),
    Sketcher.Constraint("Symmetric", 8, 2, 17, 2, -1, 1),
    Sketcher.Constraint("Symmetric", 4, 2, 8, 2, -2),
    Sketcher.Constraint("PointOnObject", 0, 2, -2),
    Sketcher.Constraint("Parallel", 5, 9),
    Sketcher.Constraint("Parallel", 4, 11),
    Sketcher.Constraint("Parallel", 1, 12),
    Sketcher.Constraint("Parallel", 0, 14),
    Sketcher.Constraint("Parallel", 6, 15),
    Sketcher.Constraint("Parallel", 8, 17),
    Sketcher.Constraint("Horizontal", 1, 2, 2, 1),
    Sketcher.Constraint("Horizontal", 3, 1, 6, 2),
    Sketcher.Constraint("Horizontal", 5, 2, 7, 1),
    Sketcher.Constraint("Equal", 1, 4),
    Sketcher.Constraint("Equal", 4, 5),
    Sketcher.Constraint("Radius", 2, Q("4.65 mm")),
    Sketcher.Constraint("DistanceY", -1, 1, 0, 2, Q("7 mm")),
    Sketcher.Constraint("DistanceY", -1, 1, 4, 2, Q("3.5 mm")),
    Sketcher.Constraint("DistanceX", 1, 2, -1, 1, Q("0.91537 mm")),
    Sketcher.Constraint("DistanceY", -1, 1, 3, 1, Q("3.07224 mm")),
])
pocket2 = body.newObject("PartDesign::Pocket", "Pocket001")
pocket2.Profile = sketch5
pocket2.Type = "ThroughAll"

doc.recompute()
